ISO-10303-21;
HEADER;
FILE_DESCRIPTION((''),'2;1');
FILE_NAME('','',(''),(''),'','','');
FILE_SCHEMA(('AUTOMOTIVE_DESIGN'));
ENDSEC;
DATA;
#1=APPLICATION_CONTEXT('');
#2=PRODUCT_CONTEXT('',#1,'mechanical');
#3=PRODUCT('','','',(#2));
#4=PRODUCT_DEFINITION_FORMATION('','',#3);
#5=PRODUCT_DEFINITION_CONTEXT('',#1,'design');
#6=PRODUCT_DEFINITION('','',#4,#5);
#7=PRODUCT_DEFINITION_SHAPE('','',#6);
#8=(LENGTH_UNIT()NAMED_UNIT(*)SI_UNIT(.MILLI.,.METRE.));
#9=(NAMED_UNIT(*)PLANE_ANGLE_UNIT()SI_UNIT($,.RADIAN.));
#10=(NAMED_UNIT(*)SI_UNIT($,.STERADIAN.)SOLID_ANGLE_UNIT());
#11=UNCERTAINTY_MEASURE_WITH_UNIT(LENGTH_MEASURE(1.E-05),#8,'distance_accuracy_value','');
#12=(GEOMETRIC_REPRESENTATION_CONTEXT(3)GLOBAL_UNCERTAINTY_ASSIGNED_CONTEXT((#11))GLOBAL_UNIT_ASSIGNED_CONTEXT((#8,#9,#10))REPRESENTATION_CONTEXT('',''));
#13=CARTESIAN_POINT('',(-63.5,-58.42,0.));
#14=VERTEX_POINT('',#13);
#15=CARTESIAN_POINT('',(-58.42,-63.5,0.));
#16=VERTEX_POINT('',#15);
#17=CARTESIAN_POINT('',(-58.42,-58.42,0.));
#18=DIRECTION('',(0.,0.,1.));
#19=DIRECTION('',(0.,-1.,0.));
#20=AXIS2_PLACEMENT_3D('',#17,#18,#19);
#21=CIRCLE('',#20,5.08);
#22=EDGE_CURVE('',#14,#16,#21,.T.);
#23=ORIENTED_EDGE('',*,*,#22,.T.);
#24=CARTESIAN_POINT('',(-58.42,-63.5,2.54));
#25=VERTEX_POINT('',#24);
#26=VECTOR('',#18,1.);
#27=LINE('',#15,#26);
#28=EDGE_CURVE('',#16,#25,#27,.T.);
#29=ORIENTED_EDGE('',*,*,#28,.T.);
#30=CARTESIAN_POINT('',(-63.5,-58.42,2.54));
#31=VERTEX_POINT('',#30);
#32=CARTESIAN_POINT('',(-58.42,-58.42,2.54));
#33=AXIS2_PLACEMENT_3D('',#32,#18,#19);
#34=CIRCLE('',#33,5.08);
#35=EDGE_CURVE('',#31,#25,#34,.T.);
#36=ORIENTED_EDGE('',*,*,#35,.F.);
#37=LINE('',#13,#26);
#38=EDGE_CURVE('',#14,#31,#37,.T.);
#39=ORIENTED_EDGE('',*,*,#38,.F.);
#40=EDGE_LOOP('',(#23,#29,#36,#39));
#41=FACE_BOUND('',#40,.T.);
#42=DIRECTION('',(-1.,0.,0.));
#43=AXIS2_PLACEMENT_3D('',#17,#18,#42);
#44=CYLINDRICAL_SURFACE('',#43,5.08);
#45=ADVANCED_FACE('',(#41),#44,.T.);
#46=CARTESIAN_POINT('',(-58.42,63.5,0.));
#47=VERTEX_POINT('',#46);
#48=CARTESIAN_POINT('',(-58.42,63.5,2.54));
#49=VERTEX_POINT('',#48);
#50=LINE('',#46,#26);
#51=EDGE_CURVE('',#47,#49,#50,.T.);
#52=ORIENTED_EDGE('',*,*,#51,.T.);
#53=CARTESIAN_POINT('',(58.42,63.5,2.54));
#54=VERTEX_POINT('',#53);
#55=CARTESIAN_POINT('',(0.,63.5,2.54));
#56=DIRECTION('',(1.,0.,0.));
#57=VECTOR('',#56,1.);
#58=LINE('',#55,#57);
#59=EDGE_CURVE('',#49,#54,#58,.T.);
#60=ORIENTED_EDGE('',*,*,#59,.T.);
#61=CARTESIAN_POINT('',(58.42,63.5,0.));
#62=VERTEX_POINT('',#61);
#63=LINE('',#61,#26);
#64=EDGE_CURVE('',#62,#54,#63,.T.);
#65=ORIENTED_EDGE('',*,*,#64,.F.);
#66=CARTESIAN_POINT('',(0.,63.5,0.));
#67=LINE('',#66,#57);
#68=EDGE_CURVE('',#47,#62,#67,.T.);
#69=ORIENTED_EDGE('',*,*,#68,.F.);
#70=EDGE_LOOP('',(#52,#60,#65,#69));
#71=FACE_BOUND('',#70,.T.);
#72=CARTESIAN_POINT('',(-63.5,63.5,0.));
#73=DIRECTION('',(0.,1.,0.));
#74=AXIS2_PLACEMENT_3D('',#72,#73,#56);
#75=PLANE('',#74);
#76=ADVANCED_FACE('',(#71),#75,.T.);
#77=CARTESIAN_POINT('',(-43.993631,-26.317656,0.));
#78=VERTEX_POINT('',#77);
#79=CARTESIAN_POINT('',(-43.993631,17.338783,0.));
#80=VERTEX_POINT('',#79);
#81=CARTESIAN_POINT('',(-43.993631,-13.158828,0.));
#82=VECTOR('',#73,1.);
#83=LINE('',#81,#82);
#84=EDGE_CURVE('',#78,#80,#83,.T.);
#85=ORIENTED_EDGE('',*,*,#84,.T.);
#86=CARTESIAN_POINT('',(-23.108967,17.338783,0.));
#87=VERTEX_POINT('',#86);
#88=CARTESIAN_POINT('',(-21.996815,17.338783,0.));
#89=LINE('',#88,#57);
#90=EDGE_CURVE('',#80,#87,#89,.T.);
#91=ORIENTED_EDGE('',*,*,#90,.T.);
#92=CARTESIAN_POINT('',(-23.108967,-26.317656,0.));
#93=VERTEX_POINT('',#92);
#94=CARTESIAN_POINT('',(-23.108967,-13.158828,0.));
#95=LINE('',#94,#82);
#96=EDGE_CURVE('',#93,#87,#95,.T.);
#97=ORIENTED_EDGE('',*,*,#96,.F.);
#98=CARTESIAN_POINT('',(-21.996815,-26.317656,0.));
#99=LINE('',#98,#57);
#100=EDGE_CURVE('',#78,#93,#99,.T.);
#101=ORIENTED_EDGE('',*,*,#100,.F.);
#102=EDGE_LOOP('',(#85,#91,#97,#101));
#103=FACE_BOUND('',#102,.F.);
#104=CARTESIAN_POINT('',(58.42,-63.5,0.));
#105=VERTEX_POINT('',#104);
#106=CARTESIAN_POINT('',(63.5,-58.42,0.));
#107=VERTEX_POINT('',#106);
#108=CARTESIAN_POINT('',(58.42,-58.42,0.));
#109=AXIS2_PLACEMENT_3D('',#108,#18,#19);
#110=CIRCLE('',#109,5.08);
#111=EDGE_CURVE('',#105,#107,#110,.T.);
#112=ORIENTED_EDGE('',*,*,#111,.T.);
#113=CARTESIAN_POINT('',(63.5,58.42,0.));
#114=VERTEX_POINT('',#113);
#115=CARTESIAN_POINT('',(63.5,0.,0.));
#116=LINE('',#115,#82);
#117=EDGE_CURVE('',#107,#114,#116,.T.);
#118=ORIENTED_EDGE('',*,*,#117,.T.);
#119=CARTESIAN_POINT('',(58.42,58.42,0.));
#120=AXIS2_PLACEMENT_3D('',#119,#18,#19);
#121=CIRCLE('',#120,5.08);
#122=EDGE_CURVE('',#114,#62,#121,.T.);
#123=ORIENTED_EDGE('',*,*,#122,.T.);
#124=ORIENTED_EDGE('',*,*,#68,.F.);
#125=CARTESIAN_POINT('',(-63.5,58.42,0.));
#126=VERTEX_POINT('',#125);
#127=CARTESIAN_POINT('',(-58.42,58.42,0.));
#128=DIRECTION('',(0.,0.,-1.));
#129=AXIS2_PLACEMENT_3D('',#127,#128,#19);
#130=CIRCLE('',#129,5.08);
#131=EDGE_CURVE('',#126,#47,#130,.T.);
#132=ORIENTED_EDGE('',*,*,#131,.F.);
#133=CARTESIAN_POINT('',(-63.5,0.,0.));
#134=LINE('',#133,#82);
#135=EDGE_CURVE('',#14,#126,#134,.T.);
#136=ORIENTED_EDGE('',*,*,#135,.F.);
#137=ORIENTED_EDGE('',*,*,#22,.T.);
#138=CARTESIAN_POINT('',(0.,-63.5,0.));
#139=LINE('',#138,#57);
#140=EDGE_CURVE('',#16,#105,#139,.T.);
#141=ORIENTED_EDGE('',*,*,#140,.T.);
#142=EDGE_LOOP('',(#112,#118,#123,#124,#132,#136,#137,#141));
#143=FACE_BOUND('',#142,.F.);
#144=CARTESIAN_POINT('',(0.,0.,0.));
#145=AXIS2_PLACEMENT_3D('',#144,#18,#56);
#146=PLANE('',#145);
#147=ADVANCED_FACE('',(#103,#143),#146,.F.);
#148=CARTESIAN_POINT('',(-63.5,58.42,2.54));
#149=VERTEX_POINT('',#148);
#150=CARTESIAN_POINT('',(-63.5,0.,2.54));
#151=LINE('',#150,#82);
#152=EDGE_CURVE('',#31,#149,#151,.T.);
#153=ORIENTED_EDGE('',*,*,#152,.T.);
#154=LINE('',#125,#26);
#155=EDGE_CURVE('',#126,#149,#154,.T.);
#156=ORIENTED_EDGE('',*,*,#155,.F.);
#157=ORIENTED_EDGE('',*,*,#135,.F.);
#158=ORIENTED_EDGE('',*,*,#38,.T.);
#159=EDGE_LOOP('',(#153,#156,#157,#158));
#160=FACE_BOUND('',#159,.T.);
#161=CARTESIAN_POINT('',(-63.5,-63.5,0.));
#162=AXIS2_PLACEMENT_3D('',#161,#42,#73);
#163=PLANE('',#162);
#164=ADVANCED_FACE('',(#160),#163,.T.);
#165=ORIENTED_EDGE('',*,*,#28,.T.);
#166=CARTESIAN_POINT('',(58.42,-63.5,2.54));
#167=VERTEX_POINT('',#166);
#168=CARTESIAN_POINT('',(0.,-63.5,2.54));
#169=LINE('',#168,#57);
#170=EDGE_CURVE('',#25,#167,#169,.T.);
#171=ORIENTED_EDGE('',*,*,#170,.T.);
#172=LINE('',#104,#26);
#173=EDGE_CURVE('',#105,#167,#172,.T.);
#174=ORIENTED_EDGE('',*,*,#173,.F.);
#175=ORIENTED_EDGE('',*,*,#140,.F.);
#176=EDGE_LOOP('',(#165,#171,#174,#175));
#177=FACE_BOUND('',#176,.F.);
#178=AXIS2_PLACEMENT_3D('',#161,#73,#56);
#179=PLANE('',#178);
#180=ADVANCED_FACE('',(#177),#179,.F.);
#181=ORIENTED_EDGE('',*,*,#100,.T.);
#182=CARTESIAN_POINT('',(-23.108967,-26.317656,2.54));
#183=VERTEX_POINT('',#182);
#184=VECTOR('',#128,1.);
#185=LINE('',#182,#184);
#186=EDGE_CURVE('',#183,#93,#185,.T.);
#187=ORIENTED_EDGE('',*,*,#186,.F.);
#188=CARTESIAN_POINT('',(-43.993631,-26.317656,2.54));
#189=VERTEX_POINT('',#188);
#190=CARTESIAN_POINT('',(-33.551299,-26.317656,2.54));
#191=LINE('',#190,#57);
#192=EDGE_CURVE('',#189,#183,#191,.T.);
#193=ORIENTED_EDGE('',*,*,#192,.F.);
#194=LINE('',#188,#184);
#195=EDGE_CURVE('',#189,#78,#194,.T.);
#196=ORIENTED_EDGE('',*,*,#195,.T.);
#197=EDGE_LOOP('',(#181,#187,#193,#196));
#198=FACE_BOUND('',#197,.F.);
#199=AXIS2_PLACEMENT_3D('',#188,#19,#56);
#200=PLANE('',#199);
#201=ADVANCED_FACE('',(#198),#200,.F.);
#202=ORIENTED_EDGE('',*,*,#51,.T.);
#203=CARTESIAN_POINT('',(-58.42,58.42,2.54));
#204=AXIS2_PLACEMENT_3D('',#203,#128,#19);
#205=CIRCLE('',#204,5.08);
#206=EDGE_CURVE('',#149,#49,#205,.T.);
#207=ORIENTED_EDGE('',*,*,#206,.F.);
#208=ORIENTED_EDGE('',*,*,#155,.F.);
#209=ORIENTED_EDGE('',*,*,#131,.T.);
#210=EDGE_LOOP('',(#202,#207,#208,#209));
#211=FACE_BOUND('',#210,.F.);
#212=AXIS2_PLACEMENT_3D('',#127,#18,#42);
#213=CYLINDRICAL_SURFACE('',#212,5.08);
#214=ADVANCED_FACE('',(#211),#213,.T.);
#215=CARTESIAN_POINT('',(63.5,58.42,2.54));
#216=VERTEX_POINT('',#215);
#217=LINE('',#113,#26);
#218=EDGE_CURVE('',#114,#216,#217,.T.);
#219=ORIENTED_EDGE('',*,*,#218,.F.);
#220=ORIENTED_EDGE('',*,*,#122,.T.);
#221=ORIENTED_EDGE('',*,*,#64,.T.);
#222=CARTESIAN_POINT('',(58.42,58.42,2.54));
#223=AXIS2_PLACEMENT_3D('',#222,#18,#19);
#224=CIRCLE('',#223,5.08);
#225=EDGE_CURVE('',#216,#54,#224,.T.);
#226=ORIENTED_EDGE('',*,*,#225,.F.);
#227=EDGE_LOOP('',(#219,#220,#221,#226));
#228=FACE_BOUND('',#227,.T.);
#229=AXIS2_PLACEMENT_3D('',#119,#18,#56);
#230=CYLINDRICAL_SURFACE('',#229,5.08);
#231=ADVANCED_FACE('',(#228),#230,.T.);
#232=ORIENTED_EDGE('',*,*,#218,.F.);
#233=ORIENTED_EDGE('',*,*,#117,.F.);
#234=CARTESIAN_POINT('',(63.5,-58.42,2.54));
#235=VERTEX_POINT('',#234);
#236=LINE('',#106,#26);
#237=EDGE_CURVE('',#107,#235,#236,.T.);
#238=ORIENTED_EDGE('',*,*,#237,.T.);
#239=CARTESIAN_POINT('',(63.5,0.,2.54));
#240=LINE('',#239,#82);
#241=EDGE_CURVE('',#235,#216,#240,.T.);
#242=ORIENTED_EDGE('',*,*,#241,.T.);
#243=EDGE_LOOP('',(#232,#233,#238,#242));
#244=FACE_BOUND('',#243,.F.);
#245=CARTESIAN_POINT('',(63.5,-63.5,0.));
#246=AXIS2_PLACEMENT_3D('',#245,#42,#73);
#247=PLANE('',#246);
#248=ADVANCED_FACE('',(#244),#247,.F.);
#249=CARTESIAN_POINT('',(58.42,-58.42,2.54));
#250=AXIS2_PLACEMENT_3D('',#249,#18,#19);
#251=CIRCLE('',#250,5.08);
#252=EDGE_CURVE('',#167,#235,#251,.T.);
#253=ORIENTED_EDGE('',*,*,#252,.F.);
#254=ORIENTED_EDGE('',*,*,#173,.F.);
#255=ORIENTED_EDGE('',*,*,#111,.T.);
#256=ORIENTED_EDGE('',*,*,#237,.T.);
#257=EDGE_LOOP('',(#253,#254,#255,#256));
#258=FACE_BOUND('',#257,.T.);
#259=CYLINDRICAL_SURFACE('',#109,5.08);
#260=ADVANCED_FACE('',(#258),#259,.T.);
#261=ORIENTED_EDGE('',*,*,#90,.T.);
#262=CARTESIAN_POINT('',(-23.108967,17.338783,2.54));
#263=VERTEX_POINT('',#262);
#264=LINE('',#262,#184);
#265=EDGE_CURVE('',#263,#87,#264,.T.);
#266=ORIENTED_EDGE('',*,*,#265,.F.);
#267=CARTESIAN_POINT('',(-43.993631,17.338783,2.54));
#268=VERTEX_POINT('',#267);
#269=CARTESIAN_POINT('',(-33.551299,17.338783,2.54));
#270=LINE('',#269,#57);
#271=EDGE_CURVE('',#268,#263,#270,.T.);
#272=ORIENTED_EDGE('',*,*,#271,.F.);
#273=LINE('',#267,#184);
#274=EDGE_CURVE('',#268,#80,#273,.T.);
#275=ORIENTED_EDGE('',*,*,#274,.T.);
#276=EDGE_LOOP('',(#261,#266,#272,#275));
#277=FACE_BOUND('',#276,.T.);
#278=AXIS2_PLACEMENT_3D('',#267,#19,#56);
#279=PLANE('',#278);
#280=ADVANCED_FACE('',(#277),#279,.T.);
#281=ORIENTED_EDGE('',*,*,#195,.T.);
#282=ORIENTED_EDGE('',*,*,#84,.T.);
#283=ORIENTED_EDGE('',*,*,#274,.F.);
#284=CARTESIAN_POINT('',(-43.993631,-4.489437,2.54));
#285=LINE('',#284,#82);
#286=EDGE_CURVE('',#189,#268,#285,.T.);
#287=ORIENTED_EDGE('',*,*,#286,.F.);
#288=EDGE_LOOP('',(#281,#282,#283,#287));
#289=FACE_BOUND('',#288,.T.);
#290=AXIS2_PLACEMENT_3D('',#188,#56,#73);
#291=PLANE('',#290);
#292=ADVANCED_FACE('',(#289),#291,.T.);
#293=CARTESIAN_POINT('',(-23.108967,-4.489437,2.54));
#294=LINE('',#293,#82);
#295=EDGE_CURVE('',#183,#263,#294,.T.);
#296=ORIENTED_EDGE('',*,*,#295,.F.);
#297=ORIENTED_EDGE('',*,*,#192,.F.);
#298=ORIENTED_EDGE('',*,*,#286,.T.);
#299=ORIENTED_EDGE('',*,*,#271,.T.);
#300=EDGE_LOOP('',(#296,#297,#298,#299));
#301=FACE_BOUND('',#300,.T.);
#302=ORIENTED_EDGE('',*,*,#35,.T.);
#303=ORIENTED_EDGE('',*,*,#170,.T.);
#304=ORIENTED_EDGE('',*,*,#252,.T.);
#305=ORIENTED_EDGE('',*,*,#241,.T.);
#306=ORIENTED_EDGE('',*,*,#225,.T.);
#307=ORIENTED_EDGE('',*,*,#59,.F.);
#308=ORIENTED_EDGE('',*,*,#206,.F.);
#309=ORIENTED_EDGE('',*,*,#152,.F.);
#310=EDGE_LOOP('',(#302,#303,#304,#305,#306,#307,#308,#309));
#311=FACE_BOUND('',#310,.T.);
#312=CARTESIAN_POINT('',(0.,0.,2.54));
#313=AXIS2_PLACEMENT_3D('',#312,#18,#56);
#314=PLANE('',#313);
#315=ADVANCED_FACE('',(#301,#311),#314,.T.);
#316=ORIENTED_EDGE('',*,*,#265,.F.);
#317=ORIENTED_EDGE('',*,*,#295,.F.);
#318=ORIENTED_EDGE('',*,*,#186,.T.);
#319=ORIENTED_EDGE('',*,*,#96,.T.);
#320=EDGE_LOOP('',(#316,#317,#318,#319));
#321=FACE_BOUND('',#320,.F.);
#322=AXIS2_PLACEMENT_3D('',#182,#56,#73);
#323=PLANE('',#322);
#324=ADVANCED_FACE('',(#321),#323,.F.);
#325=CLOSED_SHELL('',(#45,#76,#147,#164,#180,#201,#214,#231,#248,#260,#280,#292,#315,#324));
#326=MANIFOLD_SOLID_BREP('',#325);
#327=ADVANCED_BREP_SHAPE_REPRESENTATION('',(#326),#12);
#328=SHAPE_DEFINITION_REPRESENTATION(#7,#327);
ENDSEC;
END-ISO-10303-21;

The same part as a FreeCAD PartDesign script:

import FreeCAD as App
import Part
import Sketcher

V = App.Vector
Q = App.Units.Quantity


def edges_at(feature, points):
    """Names of the edges that pass closest to the given points."""
    edges = feature.Shape.Edges
    near = lambda p: min(range(len(edges)), key=lambda i: edges[i].distToShape(Part.Vertex(*p))[0])
    return sorted({f"Edge{near(p) + 1}" for p in points})


def add_polygon(sketch, points):
    """Adds a closed chain of lines whose ends are joined by coincident constraints."""
    first, n = sketch.GeometryCount, len(points)
    for a, b in zip(points, points[1:] + points[:1]):
        sketch.addGeometry(Part.LineSegment(App.Vector(*a, 0), App.Vector(*b, 0)), False)
    for i in range(n):
        sketch.addConstraint(Sketcher.Constraint("Coincident", first + i, 2, first + (i + 1) % n, 1))

doc = App.newDocument("Part")
params = doc.addObject("Spreadsheet::Sheet", "Params")
for row, (alias, value) in enumerate([
    ("sketch1_width", "5 in"),
    ("pad1_length", "0.1 in"),
    ("fillet_radius", "0.2 in"),
    ("pocket1_length", "1 in"),
], start=1):
    params.set(f"A{row}", alias)
    params.set(f"B{row}", "=" + value)
    params.setAlias(f"B{row}", alias)

body = doc.addObject("PartDesign::Body", "Body")

sketch1 = body.newObject("Sketcher::SketchObject", "Sketch")
sketch1.AttachmentSupport = (doc.getObject("XY_Plane"), [""])
sketch1.MapMode = "FlatFace"
add_polygon(sketch1, [(-64, 64), (-64, -64), (64, -64), (64, 64)])
sketch1.addConstraint([
    Sketcher.Constraint("Vertical", 0),
    Sketcher.Constraint("Horizontal", 1),
    Sketcher.Constraint("Vertical", 2),
    Sketcher.Constraint("Horizontal", 3),
    Sketcher.Constraint("Symmetric", 0, 2, 2, 2, -1, 1),
    Sketcher.Constraint("Equal", 3, 0),
    Sketcher.Constraint("DistanceX", 1, 1, 1, 2, Q("5 in")),
])
sketch1.setExpression("Constraints[10]", "Params.sketch1_width")
pad1 = body.newObject("PartDesign::Pad", "Pad")
pad1.Profile = sketch1
pad1.setExpression("Length", "Params.pad1_length")
doc.recompute()

fillet = body.newObject("PartDesign::Fillet", "Fillet")
fillet.Base = (pad1, edges_at(pad1, [
    (63.5, -63.5, 1.27),
    (63.5, 63.5, 1.27),
    (-63.5, 63.5, 1.27),
    (-63.5, -63.5, 1.27),
]))
fillet.setExpression("Radius", "Params.fillet_radius")

sketch2 = body.newObject("Sketcher::SketchObject", "Sketch001")
sketch2.AttachmentSupport = (doc.getObject("XY_Plane"), [""])
sketch2.MapMode = "FlatFace"
sketch2.AttachmentOffset = App.Placement(V(0, 0, 0.1 * 25.4), App.Rotation())
add_polygon(sketch2, [(-44, 17), (-44, -26), (-23, -26), (-23, 17)])
sketch2.addConstraint([
    Sketcher.Constraint("Vertical", 0),
    Sketcher.Constraint("Horizontal", 1),
    Sketcher.Constraint("Vertical", 2),
    Sketcher.Constraint("Horizontal", 3),
    Sketcher.Constraint("DistanceY", 0, 2, 0, 1, 43.656439),
    Sketcher.Constraint("DistanceX", 1, 1, 1, 2, 20.884663),
    Sketcher.Constraint("DistanceX", 0, 2, -1, 1, 43.993631),
    Sketcher.Constraint("DistanceY", 0, 2, -1, 1, 26.317656),
])
pocket1 = body.newObject("PartDesign::Pocket", "Pocket")
pocket1.Profile = sketch2
pocket1.setExpression("Length", "Params.pocket1_length")

doc.recompute()
